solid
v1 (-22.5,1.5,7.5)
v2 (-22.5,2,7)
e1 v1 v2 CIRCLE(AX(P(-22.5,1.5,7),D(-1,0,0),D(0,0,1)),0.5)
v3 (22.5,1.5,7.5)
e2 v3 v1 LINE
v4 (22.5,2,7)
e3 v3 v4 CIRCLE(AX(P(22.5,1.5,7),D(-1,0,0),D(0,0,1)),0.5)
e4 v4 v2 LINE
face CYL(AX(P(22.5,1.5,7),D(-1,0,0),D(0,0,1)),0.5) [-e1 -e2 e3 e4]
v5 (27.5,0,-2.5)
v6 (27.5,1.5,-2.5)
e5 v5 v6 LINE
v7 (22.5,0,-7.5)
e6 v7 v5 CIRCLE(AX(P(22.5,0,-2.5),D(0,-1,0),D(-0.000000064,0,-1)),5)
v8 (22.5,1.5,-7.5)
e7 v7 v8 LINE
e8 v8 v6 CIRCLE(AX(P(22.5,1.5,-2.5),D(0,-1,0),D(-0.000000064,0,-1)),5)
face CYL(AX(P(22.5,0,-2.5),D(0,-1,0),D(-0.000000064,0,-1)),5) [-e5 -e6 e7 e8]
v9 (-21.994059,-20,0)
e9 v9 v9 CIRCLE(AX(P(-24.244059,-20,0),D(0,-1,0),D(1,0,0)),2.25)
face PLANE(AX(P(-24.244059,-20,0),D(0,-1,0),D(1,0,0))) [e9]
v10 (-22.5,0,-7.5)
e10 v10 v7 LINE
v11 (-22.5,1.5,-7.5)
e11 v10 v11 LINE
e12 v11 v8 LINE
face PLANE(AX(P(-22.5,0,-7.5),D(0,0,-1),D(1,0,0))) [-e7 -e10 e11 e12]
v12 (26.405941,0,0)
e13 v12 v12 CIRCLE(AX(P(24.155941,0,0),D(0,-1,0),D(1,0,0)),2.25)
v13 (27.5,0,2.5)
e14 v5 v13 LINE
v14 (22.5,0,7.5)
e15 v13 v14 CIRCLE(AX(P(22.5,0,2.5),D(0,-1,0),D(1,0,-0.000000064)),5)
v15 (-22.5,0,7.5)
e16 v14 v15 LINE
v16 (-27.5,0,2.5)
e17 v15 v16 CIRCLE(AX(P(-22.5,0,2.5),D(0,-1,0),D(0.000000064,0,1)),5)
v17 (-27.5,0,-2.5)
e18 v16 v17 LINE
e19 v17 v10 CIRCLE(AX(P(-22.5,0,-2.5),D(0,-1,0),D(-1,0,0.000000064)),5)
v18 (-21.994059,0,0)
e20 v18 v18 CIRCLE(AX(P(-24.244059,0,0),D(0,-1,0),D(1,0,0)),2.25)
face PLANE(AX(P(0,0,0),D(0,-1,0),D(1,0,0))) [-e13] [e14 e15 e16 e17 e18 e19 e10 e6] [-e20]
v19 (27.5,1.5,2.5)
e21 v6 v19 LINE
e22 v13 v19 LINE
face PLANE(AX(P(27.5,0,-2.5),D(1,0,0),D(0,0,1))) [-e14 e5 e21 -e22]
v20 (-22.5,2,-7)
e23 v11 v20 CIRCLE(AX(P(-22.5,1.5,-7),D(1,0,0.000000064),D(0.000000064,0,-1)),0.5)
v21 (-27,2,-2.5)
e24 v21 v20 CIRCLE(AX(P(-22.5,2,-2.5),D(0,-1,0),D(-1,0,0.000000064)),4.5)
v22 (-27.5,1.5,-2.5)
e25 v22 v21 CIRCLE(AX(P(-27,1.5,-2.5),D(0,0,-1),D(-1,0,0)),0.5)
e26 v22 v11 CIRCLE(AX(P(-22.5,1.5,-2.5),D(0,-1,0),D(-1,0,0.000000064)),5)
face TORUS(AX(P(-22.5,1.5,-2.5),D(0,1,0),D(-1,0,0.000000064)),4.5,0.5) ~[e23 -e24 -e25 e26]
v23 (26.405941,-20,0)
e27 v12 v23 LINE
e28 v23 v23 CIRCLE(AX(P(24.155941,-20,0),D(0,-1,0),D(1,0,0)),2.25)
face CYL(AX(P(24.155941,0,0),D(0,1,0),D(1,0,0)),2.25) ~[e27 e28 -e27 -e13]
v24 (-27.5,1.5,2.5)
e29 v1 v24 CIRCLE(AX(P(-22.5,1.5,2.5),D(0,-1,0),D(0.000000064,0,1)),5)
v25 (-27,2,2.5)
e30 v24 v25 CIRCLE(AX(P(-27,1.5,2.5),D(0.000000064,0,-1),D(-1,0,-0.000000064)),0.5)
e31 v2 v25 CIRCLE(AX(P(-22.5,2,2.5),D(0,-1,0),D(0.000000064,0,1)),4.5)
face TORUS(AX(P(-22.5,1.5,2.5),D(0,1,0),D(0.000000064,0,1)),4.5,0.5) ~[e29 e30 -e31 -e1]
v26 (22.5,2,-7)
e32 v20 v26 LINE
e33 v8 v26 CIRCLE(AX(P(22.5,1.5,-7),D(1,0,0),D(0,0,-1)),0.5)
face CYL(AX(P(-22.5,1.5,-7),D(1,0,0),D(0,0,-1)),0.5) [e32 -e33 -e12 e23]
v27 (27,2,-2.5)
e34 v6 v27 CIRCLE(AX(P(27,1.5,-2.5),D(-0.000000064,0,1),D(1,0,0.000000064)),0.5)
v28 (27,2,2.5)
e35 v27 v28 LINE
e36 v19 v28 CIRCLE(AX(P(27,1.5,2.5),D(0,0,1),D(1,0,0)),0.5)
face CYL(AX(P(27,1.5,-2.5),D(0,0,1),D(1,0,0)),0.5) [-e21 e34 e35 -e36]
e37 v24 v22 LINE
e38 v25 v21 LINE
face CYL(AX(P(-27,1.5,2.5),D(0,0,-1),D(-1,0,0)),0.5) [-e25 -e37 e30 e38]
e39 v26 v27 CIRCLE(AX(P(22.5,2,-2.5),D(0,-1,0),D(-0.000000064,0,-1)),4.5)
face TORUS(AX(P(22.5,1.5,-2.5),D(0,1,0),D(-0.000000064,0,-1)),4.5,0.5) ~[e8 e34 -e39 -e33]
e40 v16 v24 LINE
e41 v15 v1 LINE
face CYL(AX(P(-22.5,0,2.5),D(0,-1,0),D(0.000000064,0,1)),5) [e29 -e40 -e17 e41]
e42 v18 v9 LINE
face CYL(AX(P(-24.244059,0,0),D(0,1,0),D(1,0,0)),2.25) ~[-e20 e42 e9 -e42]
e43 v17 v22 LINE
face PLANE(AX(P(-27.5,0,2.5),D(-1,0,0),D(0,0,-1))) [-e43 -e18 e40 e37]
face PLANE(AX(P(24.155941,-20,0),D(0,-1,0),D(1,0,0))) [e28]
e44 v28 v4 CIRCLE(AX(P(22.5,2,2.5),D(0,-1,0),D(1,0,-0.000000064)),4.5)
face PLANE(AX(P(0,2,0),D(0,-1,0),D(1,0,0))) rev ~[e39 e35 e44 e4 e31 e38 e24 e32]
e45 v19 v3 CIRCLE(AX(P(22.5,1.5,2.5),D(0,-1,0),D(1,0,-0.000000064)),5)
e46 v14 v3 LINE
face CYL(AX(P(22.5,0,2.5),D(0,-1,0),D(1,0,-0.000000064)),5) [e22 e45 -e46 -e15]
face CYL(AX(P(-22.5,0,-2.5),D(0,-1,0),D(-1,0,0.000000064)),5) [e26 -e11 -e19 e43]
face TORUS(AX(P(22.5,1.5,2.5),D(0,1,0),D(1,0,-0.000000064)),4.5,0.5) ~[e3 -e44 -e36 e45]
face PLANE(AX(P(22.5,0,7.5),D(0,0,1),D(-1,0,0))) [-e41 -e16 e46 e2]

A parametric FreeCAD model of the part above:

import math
import FreeCAD as App
import Part
import Sketcher
Q = App.Units.Quantity


def edges_at(feature, points):
    """Names of the edges that pass closest to the given points."""
    edges = feature.Shape.Edges
    near = lambda p: min(range(len(edges)), key=lambda i: edges[i].distToShape(Part.Vertex(*p))[0])
    return sorted({f"Edge{near(p) + 1}" for p in points})

doc = App.newDocument("Part")
body = doc.addObject("PartDesign::Body", "Body")

sketch1 = body.newObject("Sketcher::SketchObject", "Sketch")
sketch1.AttachmentSupport = (doc.getObject("XZ_Plane"), [""])
sketch1.MapMode = "FlatFace"
sketch1.addGeometry(Part.LineSegment(App.Vector(22.5, 7.5, 0), App.Vector(-22.5, 7.5, 0)), False)
sketch1.addGeometry(Part.ArcOfCircle(Part.Circle(App.Vector(-22.5, 2.5, 0), App.Vector(0, 0, 1), 5), math.radians(90), math.radians(180)), False)
sketch1.addGeometry(Part.LineSegment(App.Vector(-27.5, 2.5, 0), App.Vector(-27.5, -2.5, 0)), False)
sketch1.addGeometry(Part.ArcOfCircle(Part.Circle(App.Vector(-22.5, -2.5, 0), App.Vector(0, 0, 1), 5), math.radians(180), math.radians(270)), False)
sketch1.addGeometry(Part.LineSegment(App.Vector(-22.5, -7.5, 0), App.Vector(22.5, -7.5, 0)), False)
sketch1.addGeometry(Part.ArcOfCircle(Part.Circle(App.Vector(22.5, -2.5, 0), App.Vector(0, 0, 1), 5), math.radians(-90), math.radians(0)), False)
sketch1.addGeometry(Part.LineSegment(App.Vector(27.5, -2.5, 0), App.Vector(27.5, 2.5, 0)), False)
sketch1.addGeometry(Part.ArcOfCircle(Part.Circle(App.Vector(22.5, 2.5, 0), App.Vector(0, 0, 1), 5), math.radians(0), math.radians(90)), False)
sketch1.addConstraint(Sketcher.Constraint("Tangent", 0, 2, 1, 1))
sketch1.addConstraint(Sketcher.Constraint("Tangent", 1, 2, 2, 1))
sketch1.addConstraint(Sketcher.Constraint("Tangent", 2, 2, 3, 1))
sketch1.addConstraint(Sketcher.Constraint("Tangent", 3, 2, 4, 1))
sketch1.addConstraint(Sketcher.Constraint("Tangent", 4, 2, 5, 1))
sketch1.addConstraint(Sketcher.Constraint("Tangent", 5, 2, 6, 1))
sketch1.addConstraint(Sketcher.Constraint("Tangent", 6, 2, 7, 1))
sketch1.addConstraint(Sketcher.Constraint("Tangent", 7, 2, 0, 1))
sketch1.addConstraint(Sketcher.Constraint("Horizontal", 0))
sketch1.addConstraint(Sketcher.Constraint("Vertical", 2))
sketch1.addConstraint(Sketcher.Constraint("Horizontal", 4))
sketch1.addConstraint(Sketcher.Constraint("Vertical", 6))
sketch1.addConstraint(Sketcher.Constraint("Equal", 1, 3))
sketch1.addConstraint(Sketcher.Constraint("Equal", 3, 5))
sketch1.addConstraint(Sketcher.Constraint("Equal", 5, 7))
sketch1.addConstraint(Sketcher.Constraint("Symmetric", 1, 3, 5, 3, -1, 1))
sketch1.addConstraint(Sketcher.Constraint("Radius", 1, Q("5 mm")))
sketch1.addConstraint(Sketcher.Constraint("DistanceX", 0, 2, 0, 1, Q("45 mm")))
sketch1.addConstraint(Sketcher.Constraint("DistanceY", 2, 2, 2, 1, Q("5 mm")))
pad1 = body.newObject("PartDesign::Pad", "Pad")
pad1.Profile = sketch1
pad1.Length = 2
pad1.Reversed = True
doc.recompute()

fillet = body.newObject("PartDesign::Fillet", "Fillet")
fillet.Base = (pad1, edges_at(pad1, [
    (0, 2, 7.5),
    (-26.036, 2, 6.036),
    (-27.5, 2, 0),
    (-26.036, 2, -6.036),
    (0, 2, -7.5),
    (26.036, 2, -6.036),
    (27.5, 2, 0),
    (26.036, 2, 6.036),
]))
fillet.Radius = 0.5

sketch2 = body.newObject("Sketcher::SketchObject", "Sketch001")
sketch2.AttachmentSupport = (doc.getObject("XZ_Plane"), [""])
sketch2.MapMode = "FlatFace"
sketch2.addGeometry(Part.Circle(App.Vector(24.2, 0, 0), App.Vector(0, 0, 1), 2.2), False)
sketch2.addGeometry(Part.Circle(App.Vector(-24.2, 0, 0), App.Vector(0, 0, 1), 2.2), False)
sketch2.addConstraint(Sketcher.Constraint("Equal", 0, 1))
sketch2.addConstraint(Sketcher.Constraint("PointOnObject", 0, 3, -1))
sketch2.addConstraint(Sketcher.Constraint("PointOnObject", 1, 3, -1))
sketch2.addConstraint(Sketcher.Constraint("Diameter", 0, Q("4.5 mm")))
sketch2.addConstraint(Sketcher.Constraint("DistanceX", 1, 3, 0, 3, Q("48.4 mm")))
sketch2.addConstraint(Sketcher.Constraint("DistanceX", -1, 1, 0, 3, Q("24.155941 mm")))
pad2 = body.newObject("PartDesign::Pad", "Pad001")
pad2.Profile = sketch2
pad2.Length = 20

doc.recompute()
